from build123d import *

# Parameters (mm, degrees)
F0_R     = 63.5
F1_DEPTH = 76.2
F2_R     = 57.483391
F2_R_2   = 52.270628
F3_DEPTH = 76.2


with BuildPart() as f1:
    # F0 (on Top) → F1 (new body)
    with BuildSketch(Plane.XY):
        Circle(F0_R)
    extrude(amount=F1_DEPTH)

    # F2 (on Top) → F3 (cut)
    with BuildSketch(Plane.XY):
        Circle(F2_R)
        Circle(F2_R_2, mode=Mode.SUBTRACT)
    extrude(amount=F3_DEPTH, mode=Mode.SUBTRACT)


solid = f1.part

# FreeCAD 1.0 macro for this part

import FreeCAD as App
import Part
import Sketcher

V = App.Vector
Q = App.Units.Quantity

doc = App.newDocument("Part")
body = doc.addObject("PartDesign::Body", "Body")
body.AllowCompound = True

# Sketch on XY plane
sketch1 = body.newObject("Sketcher::SketchObject", "Sketch")
sketch1.AttachmentSupport = (doc.getObject("XY_Plane"), [""])
sketch1.MapMode = "FlatFace"
sketch1.addGeometry(Part.Circle(V(0, 0, 0), V(0, 0, 1), 64), False)
sketch1.addConstraint([
    Sketcher.Constraint("Coincident", 0, 3, -1, 1),
    Sketcher.Constraint("Diameter", 0, Q("5 in")),
])
pad1 = body.newObject("PartDesign::Pad", "Pad")
pad1.Profile = sketch1
pad1.Length = Q("3 in")

# Sketch on XY plane
sketch2 = body.newObject("Sketcher::SketchObject", "Sketch001")
sketch2.AttachmentSupport = (doc.getObject("XY_Plane"), [""])
sketch2.MapMode = "FlatFace"
sketch2.addGeometry([
    Part.Circle(V(0, 0, 0), V(0, 0, 1), 57),
    Part.Circle(V(0, 0, 0), V(0, 0, 1), 52),
], False)
sketch2.addConstraint([
    Sketcher.Constraint("Coincident", 0, 3, -1, 1),
    Sketcher.Constraint("Coincident", 1, 3, -1, 1),
    Sketcher.Constraint("Diameter", 0, 114.966782),
    Sketcher.Constraint("Diameter", 1, 104.541256),
])
pocket1 = body.newObject("PartDesign::Pocket", "Pocket")
pocket1.Profile = sketch2
pocket1.Length = Q("3 in")
pocket1.Reversed = True

doc.recompute()
